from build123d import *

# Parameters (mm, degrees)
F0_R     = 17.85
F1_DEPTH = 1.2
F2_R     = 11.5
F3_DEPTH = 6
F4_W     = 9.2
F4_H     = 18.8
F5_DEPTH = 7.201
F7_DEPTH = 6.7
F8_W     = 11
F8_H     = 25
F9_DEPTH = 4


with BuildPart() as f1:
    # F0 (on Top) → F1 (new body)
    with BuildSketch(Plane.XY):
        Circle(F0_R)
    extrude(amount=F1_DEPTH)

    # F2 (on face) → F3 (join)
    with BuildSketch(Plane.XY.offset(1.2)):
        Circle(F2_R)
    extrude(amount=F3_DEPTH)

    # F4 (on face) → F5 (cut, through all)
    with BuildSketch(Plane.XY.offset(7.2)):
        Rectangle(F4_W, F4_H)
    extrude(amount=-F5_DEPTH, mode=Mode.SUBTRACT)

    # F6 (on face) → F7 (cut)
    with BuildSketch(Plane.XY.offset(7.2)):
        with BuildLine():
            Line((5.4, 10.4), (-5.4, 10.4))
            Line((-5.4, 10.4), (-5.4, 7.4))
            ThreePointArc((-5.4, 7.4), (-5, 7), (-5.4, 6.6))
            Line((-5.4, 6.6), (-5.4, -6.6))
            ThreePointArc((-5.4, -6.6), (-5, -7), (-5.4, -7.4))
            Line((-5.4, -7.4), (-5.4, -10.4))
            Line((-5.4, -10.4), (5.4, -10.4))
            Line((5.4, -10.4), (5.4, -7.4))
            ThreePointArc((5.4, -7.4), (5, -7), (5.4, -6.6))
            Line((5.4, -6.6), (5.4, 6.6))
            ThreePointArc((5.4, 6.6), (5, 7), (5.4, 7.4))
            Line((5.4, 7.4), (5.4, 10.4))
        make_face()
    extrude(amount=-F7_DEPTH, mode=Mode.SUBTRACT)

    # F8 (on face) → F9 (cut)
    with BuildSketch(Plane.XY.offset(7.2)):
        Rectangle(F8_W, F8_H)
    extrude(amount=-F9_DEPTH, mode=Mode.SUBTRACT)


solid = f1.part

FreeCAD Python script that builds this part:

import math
import FreeCAD as App
import Part
import Sketcher
from FreeCAD import Vector
Q = App.Units.Quantity

doc = App.newDocument("Part")
params = doc.addObject("Spreadsheet::Sheet", "Params")
for row, (alias, value) in enumerate([
    ("sketch1_diameter", "35.7 mm"),
    ("pad1_length", "1.2 mm"),
    ("sketch2_diameter", "23 mm"),
    ("pad2_length", "6 mm"),
    ("sketch3_width", "9.2 mm"),
    ("sketch3_height", "18.8 mm"),
    ("sketch4_radius", "0.4 mm"),
    ("sketch4_height", "3 mm"),
    ("sketch4_width", "10.8 mm"),
    ("sketch4_height2", "13.2 mm"),
    ("pocket2_length", "6.7 mm"),
    ("sketch5_width", "11 mm"),
    ("sketch5_height", "25 mm"),
    ("pocket3_length", "4 mm"),
], start=1):
    params.set(f"A{row}", alias)
    params.set(f"B{row}", "=" + value)
    params.setAlias(f"B{row}", alias)

body = doc.addObject("PartDesign::Body", "Body")

sketch1 = body.newObject("Sketcher::SketchObject", "Sketch")
sketch1.AttachmentSupport = (doc.getObject("XY_Plane"), [""])
sketch1.MapMode = "FlatFace"
sketch1.addGeometry(Part.Circle(Vector(0, 0, 0), Vector(0, 0, 1), 18), False)
sketch1.addConstraint(Sketcher.Constraint("Coincident", 0, 3, -1, 1))
sketch1.addConstraint(Sketcher.Constraint("Diameter", 0, Q("35.7 mm")))
sketch1.setExpression("Constraints[1]", "Params.sketch1_diameter")
pad1 = body.newObject("PartDesign::Pad", "Pad")
pad1.Profile = sketch1
pad1.setExpression("Length", "Params.pad1_length")

sketch2 = body.newObject("Sketcher::SketchObject", "Sketch001")
sketch2.AttachmentSupport = (doc.getObject("XY_Plane"), [""])
sketch2.MapMode = "FlatFace"
sketch2.AttachmentOffset = App.Placement(Vector(0, 0, 1.2), App.Rotation())
sketch2.addGeometry(Part.Circle(Vector(0, 0, 0), Vector(0, 0, 1), 12), False)
sketch2.addConstraint(Sketcher.Constraint("Coincident", 0, 3, -1, 1))
sketch2.addConstraint(Sketcher.Constraint("Diameter", 0, Q("23 mm")))
sketch2.setExpression("Constraints[1]", "Params.sketch2_diameter")
pad2 = body.newObject("PartDesign::Pad", "Pad001")
pad2.Profile = sketch2
pad2.setExpression("Length", "Params.pad2_length")

sketch3 = body.newObject("Sketcher::SketchObject", "Sketch002")
sketch3.AttachmentSupport = (doc.getObject("XY_Plane"), [""])
sketch3.MapMode = "FlatFace"
sketch3.AttachmentOffset = App.Placement(Vector(0, 0, 7.2), App.Rotation())
sketch3.addGeometry(Part.LineSegment(Vector(-5, 9, 0), Vector(-5, -9, 0)), False)
sketch3.addGeometry(Part.LineSegment(Vector(-5, -9, 0), Vector(5, -9, 0)), False)
sketch3.addGeometry(Part.LineSegment(Vector(5, -9, 0), Vector(5, 9, 0)), False)
sketch3.addGeometry(Part.LineSegment(Vector(5, 9, 0), Vector(-5, 9, 0)), False)
sketch3.addConstraint(Sketcher.Constraint("Coincident", 0, 2, 1, 1))
sketch3.addConstraint(Sketcher.Constraint("Coincident", 1, 2, 2, 1))
sketch3.addConstraint(Sketcher.Constraint("Coincident", 2, 2, 3, 1))
sketch3.addConstraint(Sketcher.Constraint("Coincident", 3, 2, 0, 1))
sketch3.addConstraint(Sketcher.Constraint("Vertical", 0))
sketch3.addConstraint(Sketcher.Constraint("Horizontal", 1))
sketch3.addConstraint(Sketcher.Constraint("Vertical", 2))
sketch3.addConstraint(Sketcher.Constraint("Horizontal", 3))
sketch3.addConstraint(Sketcher.Constraint("Symmetric", 0, 2, 2, 2, -1, 1))
sketch3.addConstraint(Sketcher.Constraint("DistanceX", 1, 1, 1, 2, Q("9.2 mm")))
sketch3.addConstraint(Sketcher.Constraint("DistanceY", 0, 2, 0, 1, Q("18.8 mm")))
sketch3.setExpression("Constraints[9]", "Params.sketch3_width")
sketch3.setExpression("Constraints[10]", "Params.sketch3_height")
pocket1 = body.newObject("PartDesign::Pocket", "Pocket")
pocket1.Profile = sketch3
pocket1.Type = "ThroughAll"

sketch4 = body.newObject("Sketcher::SketchObject", "Sketch003")
sketch4.AttachmentSupport = (doc.getObject("XY_Plane"), [""])
sketch4.MapMode = "FlatFace"
sketch4.AttachmentOffset = App.Placement(Vector(0, 0, 7.2), App.Rotation())
sketch4.addGeometry(Part.LineSegment(Vector(5.4, 10.4, 0), Vector(-5.4, 10.4, 0)), False)
sketch4.addGeometry(Part.LineSegment(Vector(-5.4, 10.4, 0), Vector(-5.4, 7.4, 0)), False)
sketch4.addGeometry(Part.ArcOfCircle(Part.Circle(Vector(-5.4, 7, 0), Vector(0, 0, 1), 0.4), math.radians(-90), math.radians(90)), False)
sketch4.addGeometry(Part.LineSegment(Vector(-5.4, 6.6, 0), Vector(-5.4, -6.6, 0)), False)
sketch4.addGeometry(Part.ArcOfCircle(Part.Circle(Vector(-5.4, -7, 0), Vector(0, 0, 1), 0.4), math.radians(-90), math.radians(90)), False)
sketch4.addGeometry(Part.LineSegment(Vector(-5.4, -7.4, 0), Vector(-5.4, -10.4, 0)), False)
sketch4.addGeometry(Part.LineSegment(Vector(-5.4, -10.4, 0), Vector(5.4, -10.4, 0)), False)
sketch4.addGeometry(Part.LineSegment(Vector(5.4, -10.4, 0), Vector(5.4, -7.4, 0)), False)
sketch4.addGeometry(Part.ArcOfCircle(Part.Circle(Vector(5.4, -7, 0), Vector(0, 0, 1), 0.4), math.radians(90), math.radians(270)), False)
sketch4.addGeometry(Part.LineSegment(Vector(5.4, -6.6, 0), Vector(5.4, 6.6, 0)), False)
sketch4.addGeometry(Part.ArcOfCircle(Part.Circle(Vector(5.4, 7, 0), Vector(0, 0, 1), 0.4), math.radians(90), math.radians(270)), False)
sketch4.addGeometry(Part.LineSegment(Vector(5.4, 7.4, 0), Vector(5.4, 10.4, 0)), False)
sketch4.addConstraint(Sketcher.Constraint("Coincident", 0, 2, 1, 1))
sketch4.addConstraint(Sketcher.Constraint("Coincident", 1, 2, 2, 2))
sketch4.addConstraint(Sketcher.Constraint("Coincident", 2, 1, 3, 1))
sketch4.addConstraint(Sketcher.Constraint("Coincident", 3, 2, 4, 2))
sketch4.addConstraint(Sketcher.Constraint("Coincident", 4, 1, 5, 1))
sketch4.addConstraint(Sketcher.Constraint("Coincident", 5, 2, 6, 1))
sketch4.addConstraint(Sketcher.Constraint("Coincident", 6, 2, 7, 1))
sketch4.addConstraint(Sketcher.Constraint("Coincident", 7, 2, 8, 2))
sketch4.addConstraint(Sketcher.Constraint("Coincident", 8, 1, 9, 1))
sketch4.addConstraint(Sketcher.Constraint("Coincident", 9, 2, 10, 2))
sketch4.addConstraint(Sketcher.Constraint("Coincident", 10, 1, 11, 1))
sketch4.addConstraint(Sketcher.Constraint("Coincident", 11, 2, 0, 1))
sketch4.addConstraint(Sketcher.Constraint("Horizontal", 0))
sketch4.addConstraint(Sketcher.Constraint("Vertical", 1))
sketch4.addConstraint(Sketcher.Constraint("Vertical", 3))
sketch4.addConstraint(Sketcher.Constraint("Vertical", 5))
sketch4.addConstraint(Sketcher.Constraint("Horizontal", 6))
sketch4.addConstraint(Sketcher.Constraint("Vertical", 7))
sketch4.addConstraint(Sketcher.Constraint("Vertical", 9))
sketch4.addConstraint(Sketcher.Constraint("Vertical", 11))
sketch4.addConstraint(Sketcher.Constraint("Equal", 2, 4))
sketch4.addConstraint(Sketcher.Constraint("Equal", 4, 8))
sketch4.addConstraint(Sketcher.Constraint("Equal", 8, 10))
sketch4.addConstraint(Sketcher.Constraint("Symmetric", 2, 3, 8, 3, -1, 1))
sketch4.addConstraint(Sketcher.Constraint("Symmetric", 4, 3, 10, 3, -1, 1))
sketch4.addConstraint(Sketcher.Constraint("Symmetric", 0, 2, 6, 2, -1, 1))
sketch4.addConstraint(Sketcher.Constraint("Symmetric", 4, 3, 8, 3, -2))
sketch4.addConstraint(Sketcher.Constraint("Vertical", 4, 3, 0, 2))
sketch4.addConstraint(Sketcher.Constraint("Vertical", 1, 2, 2, 1))
sketch4.addConstraint(Sketcher.Constraint("Vertical", 3, 2, 4, 1))
sketch4.addConstraint(Sketcher.Constraint("Vertical", 7, 2, 8, 1))
sketch4.addConstraint(Sketcher.Constraint("Vertical", 9, 2, 10, 1))
sketch4.addConstraint(Sketcher.Constraint("Radius", 2, Q("0.4 mm")))
sketch4.addConstraint(Sketcher.Constraint("DistanceY", 1, 2, 1, 1, Q("3 mm")))
sketch4.addConstraint(Sketcher.Constraint("DistanceX", 0, 2, 0, 1, Q("10.8 mm")))
sketch4.addConstraint(Sketcher.Constraint("DistanceY", 3, 2, 3, 1, Q("13.2 mm")))
sketch4.setExpression("Constraints[32]", "Params.sketch4_radius")
sketch4.setExpression("Constraints[33]", "Params.sketch4_height")
sketch4.setExpression("Constraints[34]", "Params.sketch4_width")
sketch4.setExpression("Constraints[35]", "Params.sketch4_height2")
pocket2 = body.newObject("PartDesign::Pocket", "Pocket001")
pocket2.Profile = sketch4
pocket2.setExpression("Length", "Params.pocket2_length")

sketch5 = body.newObject("Sketcher::SketchObject", "Sketch004")
sketch5.AttachmentSupport = (doc.getObject("XY_Plane"), [""])
sketch5.MapMode = "FlatFace"
sketch5.AttachmentOffset = App.Placement(Vector(0, 0, 7.2), App.Rotation())
sketch5.addGeometry(Part.LineSegment(Vector(-6, 12, 0), Vector(-6, -12, 0)), False)
sketch5.addGeometry(Part.LineSegment(Vector(-6, -12, 0), Vector(6, -12, 0)), False)
sketch5.addGeometry(Part.LineSegment(Vector(6, -12, 0), Vector(6, 12, 0)), False)
sketch5.addGeometry(Part.LineSegment(Vector(6, 12, 0), Vector(-6, 12, 0)), False)
sketch5.addConstraint(Sketcher.Constraint("Coincident", 0, 2, 1, 1))
sketch5.addConstraint(Sketcher.Constraint("Coincident", 1, 2, 2, 1))
sketch5.addConstraint(Sketcher.Constraint("Coincident", 2, 2, 3, 1))
sketch5.addConstraint(Sketcher.Constraint("Coincident", 3, 2, 0, 1))
sketch5.addConstraint(Sketcher.Constraint("Vertical", 0))
sketch5.addConstraint(Sketcher.Constraint("Horizontal", 1))
sketch5.addConstraint(Sketcher.Constraint("Vertical", 2))
sketch5.addConstraint(Sketcher.Constraint("Horizontal", 3))
sketch5.addConstraint(Sketcher.Constraint("Symmetric", 0, 2, 2, 2, -1, 1))
sketch5.addConstraint(Sketcher.Constraint("DistanceX", 1, 1, 1, 2, Q("11 mm")))
sketch5.addConstraint(Sketcher.Constraint("DistanceY", 0, 2, 0, 1, Q("25 mm")))
sketch5.setExpression("Constraints[9]", "Params.sketch5_width")
sketch5.setExpression("Constraints[10]", "Params.sketch5_height")
pocket3 = body.newObject("PartDesign::Pocket", "Pocket002")
pocket3.Profile = sketch5
pocket3.setExpression("Length", "Params.pocket3_length")

doc.recompute()
